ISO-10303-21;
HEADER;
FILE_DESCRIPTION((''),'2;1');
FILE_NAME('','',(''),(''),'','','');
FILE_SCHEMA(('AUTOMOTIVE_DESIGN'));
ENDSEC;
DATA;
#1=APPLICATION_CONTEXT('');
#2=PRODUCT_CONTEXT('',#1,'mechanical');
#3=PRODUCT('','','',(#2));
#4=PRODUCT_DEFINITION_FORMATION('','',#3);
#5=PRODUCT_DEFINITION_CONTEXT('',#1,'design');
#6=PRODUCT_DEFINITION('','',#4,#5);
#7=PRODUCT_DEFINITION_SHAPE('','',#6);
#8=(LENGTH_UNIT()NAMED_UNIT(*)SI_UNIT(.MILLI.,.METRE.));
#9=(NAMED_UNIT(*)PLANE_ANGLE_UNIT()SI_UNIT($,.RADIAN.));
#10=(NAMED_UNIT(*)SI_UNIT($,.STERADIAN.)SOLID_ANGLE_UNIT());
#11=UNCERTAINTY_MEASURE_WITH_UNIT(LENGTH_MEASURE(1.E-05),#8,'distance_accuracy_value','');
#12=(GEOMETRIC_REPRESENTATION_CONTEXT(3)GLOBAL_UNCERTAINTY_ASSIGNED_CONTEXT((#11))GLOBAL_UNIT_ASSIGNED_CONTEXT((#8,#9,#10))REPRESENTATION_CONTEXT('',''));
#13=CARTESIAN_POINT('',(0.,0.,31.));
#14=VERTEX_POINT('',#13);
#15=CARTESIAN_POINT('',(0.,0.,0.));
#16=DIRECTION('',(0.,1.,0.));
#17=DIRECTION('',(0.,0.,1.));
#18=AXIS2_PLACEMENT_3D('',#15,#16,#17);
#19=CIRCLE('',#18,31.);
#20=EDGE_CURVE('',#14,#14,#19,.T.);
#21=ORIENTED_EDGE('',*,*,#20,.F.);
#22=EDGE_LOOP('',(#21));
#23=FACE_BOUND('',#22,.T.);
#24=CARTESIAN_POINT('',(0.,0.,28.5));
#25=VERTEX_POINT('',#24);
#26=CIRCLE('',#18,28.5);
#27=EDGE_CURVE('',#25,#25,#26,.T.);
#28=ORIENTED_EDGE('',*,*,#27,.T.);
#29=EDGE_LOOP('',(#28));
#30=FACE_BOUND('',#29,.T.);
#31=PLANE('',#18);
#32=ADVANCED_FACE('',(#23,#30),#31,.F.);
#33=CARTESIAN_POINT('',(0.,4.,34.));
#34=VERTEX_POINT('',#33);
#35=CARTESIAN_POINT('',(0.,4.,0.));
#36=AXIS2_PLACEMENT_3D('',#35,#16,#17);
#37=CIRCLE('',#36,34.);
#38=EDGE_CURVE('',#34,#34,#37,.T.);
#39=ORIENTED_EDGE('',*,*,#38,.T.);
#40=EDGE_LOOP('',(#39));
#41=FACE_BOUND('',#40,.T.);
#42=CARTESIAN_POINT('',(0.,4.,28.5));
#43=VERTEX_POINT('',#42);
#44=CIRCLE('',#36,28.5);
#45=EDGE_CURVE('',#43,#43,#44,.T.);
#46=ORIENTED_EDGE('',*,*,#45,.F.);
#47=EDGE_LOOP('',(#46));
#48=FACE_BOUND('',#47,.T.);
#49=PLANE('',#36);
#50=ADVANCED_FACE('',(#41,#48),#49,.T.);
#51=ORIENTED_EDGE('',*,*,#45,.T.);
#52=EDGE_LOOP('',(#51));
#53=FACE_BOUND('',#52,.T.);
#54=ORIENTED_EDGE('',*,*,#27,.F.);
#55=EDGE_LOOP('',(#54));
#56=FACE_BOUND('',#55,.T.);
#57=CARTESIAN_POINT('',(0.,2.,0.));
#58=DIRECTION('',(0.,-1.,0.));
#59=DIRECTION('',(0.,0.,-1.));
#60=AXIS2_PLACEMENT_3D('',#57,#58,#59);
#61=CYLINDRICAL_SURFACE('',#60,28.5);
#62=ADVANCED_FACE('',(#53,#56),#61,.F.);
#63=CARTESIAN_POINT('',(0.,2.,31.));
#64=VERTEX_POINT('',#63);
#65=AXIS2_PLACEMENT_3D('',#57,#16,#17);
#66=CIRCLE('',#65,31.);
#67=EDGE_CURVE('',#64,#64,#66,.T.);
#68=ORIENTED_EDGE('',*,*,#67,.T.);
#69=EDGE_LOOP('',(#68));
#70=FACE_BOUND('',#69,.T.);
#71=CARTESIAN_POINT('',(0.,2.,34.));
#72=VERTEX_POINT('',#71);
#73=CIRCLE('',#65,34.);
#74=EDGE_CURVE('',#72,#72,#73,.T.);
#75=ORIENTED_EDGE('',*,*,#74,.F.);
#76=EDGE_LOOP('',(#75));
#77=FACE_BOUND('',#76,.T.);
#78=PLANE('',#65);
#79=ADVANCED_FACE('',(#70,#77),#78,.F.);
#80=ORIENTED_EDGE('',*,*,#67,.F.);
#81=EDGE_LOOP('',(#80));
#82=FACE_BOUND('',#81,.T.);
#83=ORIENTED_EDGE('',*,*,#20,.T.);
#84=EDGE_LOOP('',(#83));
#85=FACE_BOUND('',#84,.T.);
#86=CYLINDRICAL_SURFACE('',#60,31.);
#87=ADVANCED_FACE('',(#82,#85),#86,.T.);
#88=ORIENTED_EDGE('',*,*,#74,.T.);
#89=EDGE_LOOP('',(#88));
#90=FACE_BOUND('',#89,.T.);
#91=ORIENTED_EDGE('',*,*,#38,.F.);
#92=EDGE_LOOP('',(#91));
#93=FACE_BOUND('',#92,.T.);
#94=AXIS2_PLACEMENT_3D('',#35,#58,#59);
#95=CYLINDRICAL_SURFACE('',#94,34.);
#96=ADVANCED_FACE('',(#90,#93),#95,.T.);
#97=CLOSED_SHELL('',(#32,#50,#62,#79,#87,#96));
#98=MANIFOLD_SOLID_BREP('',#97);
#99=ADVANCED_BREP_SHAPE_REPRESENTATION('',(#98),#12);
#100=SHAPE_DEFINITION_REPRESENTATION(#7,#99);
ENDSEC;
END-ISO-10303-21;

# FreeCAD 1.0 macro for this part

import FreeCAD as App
import Part
import Sketcher
from FreeCAD import Vector

doc = App.newDocument("Part")
body = doc.addObject("PartDesign::Body", "Body")

sketch1 = doc.addObject("Sketcher::SketchObject", "Sketch")
body.addObject(sketch1)
sketch1.AttachmentSupport = (doc.XZ_Plane, [""])
sketch1.MapMode = "FlatFace"
sketch1.addGeometry(Part.Circle(Vector(0, 0, 0), Vector(0, 0, 1), 31), False)
sketch1.addGeometry(Part.Circle(Vector(0, 0, 0), Vector(0, 0, 1), 28.5), False)
sketch1.addConstraint(Sketcher.Constraint("Coincident", 0, 3, -1, 1))
sketch1.addConstraint(Sketcher.Constraint("Coincident", 1, 3, -1, 1))
sketch1.addConstraint(Sketcher.Constraint("Diameter", 0, 62.0))
sketch1.addConstraint(Sketcher.Constraint("Diameter", 1, 57.0))
pad1 = doc.addObject("PartDesign::Pad", "Pad")
body.addObject(pad1)
pad1.Profile = sketch1
pad1.Length = 2
pad1.Reversed = True

sketch2 = doc.addObject("Sketcher::SketchObject", "Sketch001")
body.addObject(sketch2)
sketch2.AttachmentSupport = (doc.XZ_Plane, [""])
sketch2.MapMode = "FlatFace"
sketch2.AttachmentOffset = App.Placement(Vector(0, 0, -2), App.Rotation())
sketch2.addGeometry(Part.Circle(Vector(0, 0, 0), Vector(0, 0, 1), 34), False)
sketch2.addGeometry(Part.Circle(Vector(0, 0, 0), Vector(0, 0, 1), 28.5), False)
sketch2.addConstraint(Sketcher.Constraint("Coincident", 0, 3, -1, 1))
sketch2.addConstraint(Sketcher.Constraint("Coincident", 1, 3, -1, 1))
sketch2.addConstraint(Sketcher.Constraint("Diameter", 0, 68.0))
sketch2.addConstraint(Sketcher.Constraint("Diameter", 1, 57.0))
pad2 = doc.addObject("PartDesign::Pad", "Pad001")
body.addObject(pad2)
pad2.Profile = sketch2
pad2.Length = 2
pad2.Reversed = True

doc.recompute()
